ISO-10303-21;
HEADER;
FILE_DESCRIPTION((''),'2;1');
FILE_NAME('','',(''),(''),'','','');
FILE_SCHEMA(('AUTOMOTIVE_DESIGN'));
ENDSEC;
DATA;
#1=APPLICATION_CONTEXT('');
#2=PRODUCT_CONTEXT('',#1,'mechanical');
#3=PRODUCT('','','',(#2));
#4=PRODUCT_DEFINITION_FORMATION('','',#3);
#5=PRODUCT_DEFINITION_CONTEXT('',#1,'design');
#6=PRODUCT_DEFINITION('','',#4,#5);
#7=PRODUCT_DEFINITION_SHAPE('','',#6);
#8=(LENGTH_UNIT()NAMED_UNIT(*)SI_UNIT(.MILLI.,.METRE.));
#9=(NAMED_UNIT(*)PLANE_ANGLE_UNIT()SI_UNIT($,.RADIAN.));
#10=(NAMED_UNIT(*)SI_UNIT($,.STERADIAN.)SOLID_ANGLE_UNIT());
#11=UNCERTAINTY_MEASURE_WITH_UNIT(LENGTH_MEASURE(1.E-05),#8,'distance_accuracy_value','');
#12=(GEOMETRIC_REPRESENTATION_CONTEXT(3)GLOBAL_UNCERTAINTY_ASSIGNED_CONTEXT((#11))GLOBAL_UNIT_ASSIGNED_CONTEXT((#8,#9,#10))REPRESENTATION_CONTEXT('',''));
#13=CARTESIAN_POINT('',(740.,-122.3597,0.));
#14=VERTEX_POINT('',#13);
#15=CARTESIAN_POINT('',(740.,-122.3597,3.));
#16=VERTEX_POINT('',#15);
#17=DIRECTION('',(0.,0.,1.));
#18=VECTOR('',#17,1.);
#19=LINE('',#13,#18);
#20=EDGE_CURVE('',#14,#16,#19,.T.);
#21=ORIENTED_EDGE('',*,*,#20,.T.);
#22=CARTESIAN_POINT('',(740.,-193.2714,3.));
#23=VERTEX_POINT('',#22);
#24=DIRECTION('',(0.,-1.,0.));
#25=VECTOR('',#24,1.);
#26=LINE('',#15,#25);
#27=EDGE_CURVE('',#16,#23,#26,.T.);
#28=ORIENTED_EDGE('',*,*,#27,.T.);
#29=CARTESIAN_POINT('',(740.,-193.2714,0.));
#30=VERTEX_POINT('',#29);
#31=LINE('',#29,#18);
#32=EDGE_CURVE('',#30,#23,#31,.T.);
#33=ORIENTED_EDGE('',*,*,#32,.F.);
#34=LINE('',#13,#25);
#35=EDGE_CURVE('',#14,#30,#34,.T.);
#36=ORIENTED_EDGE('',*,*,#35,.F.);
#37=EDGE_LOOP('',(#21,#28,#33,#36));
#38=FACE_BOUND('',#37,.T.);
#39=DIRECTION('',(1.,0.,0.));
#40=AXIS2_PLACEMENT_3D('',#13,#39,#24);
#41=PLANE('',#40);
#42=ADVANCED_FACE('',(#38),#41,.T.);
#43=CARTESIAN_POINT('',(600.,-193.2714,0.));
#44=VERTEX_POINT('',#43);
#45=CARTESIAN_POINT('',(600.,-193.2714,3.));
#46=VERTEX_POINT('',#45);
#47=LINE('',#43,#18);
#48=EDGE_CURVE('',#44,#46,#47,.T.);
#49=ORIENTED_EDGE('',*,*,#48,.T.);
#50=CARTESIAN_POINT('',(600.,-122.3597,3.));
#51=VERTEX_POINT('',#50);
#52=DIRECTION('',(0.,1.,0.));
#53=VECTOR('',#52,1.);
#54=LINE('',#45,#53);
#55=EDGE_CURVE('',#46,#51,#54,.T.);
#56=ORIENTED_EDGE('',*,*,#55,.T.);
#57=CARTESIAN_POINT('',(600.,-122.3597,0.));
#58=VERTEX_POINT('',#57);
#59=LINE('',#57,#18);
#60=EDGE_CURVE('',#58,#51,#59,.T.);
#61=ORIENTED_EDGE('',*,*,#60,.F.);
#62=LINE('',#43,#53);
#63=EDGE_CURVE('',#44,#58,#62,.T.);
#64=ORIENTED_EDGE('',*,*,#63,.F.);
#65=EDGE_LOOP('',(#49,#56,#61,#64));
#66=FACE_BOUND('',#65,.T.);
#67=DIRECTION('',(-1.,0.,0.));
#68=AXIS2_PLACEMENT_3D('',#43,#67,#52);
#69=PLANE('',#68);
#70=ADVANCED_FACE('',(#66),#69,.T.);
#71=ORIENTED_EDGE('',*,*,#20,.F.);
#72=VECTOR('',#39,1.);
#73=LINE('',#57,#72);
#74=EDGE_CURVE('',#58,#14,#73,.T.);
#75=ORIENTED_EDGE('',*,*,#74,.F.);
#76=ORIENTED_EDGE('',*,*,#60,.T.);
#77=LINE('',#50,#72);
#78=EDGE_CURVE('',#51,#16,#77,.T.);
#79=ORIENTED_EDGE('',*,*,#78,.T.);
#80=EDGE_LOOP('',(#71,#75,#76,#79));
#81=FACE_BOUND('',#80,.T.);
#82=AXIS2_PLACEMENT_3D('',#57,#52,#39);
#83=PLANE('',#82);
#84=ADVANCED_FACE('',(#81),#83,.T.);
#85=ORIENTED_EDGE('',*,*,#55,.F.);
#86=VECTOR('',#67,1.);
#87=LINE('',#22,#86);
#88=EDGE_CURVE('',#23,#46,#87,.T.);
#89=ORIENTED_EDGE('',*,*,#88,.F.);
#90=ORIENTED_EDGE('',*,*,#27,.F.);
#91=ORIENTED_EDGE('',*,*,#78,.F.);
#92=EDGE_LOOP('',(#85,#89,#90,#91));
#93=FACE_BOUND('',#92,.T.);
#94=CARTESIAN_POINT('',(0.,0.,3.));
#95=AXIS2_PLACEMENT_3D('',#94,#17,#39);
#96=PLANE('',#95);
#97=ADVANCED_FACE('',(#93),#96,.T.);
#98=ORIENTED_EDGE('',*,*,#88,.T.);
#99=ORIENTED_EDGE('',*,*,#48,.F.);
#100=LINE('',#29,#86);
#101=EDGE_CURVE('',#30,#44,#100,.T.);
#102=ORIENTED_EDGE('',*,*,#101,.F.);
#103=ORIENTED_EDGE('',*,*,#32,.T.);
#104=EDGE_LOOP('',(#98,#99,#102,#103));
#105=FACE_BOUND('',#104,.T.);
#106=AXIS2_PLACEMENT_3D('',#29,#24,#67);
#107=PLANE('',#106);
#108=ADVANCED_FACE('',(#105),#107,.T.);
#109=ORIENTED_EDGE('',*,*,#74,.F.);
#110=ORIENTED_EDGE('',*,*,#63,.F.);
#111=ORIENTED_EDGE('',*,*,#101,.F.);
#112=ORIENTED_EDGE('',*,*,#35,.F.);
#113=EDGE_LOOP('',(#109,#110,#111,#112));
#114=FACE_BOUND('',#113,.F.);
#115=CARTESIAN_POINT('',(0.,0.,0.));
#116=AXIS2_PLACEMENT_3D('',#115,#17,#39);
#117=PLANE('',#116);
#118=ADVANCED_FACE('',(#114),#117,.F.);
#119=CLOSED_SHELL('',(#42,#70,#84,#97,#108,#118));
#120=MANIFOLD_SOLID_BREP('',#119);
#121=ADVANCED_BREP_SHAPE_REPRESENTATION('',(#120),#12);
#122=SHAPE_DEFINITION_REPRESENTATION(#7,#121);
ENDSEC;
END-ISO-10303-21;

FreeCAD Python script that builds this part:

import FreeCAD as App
import Part
import Sketcher
Q = App.Units.Quantity


def add_polygon(sketch, points):
    """Adds a closed chain of lines whose ends are joined by coincident constraints."""
    first, n = sketch.GeometryCount, len(points)
    for a, b in zip(points, points[1:] + points[:1]):
        sketch.addGeometry(Part.LineSegment(App.Vector(*a, 0), App.Vector(*b, 0)), False)
    for i in range(n):
        sketch.addConstraint(Sketcher.Constraint("Coincident", first + i, 2, first + (i + 1) % n, 1))

doc = App.newDocument("Part")
body = doc.addObject("PartDesign::Body", "Body")

sketch1 = body.newObject("Sketcher::SketchObject", "Sketch")
sketch1.AttachmentSupport = (doc.getObject("XY_Plane"), [""])
sketch1.MapMode = "FlatFace"
add_polygon(sketch1, [(740, -122.3597), (600, -122.3597), (600, -193.2714), (740, -193.2714)])
sketch1.addConstraint(Sketcher.Constraint("Horizontal", 0))
sketch1.addConstraint(Sketcher.Constraint("Vertical", 1))
sketch1.addConstraint(Sketcher.Constraint("Horizontal", 2))
sketch1.addConstraint(Sketcher.Constraint("Vertical", 3))
sketch1.addConstraint(Sketcher.Constraint("DistanceX", 0, 2, 0, 1, Q("140 mm")))
sketch1.addConstraint(Sketcher.Constraint("DistanceX", -1, 1, 0, 2, Q("600 mm")))
sketch1.addConstraint(Sketcher.Constraint("DistanceY", 1, 2, 1, 1, Q("70.9117 mm")))
sketch1.addConstraint(Sketcher.Constraint("DistanceY", 0, 2, -1, 1, Q("122.3597 mm")))
pad1 = body.newObject("PartDesign::Pad", "Pad")
pad1.Profile = sketch1
pad1.Length = 3

doc.recompute()
